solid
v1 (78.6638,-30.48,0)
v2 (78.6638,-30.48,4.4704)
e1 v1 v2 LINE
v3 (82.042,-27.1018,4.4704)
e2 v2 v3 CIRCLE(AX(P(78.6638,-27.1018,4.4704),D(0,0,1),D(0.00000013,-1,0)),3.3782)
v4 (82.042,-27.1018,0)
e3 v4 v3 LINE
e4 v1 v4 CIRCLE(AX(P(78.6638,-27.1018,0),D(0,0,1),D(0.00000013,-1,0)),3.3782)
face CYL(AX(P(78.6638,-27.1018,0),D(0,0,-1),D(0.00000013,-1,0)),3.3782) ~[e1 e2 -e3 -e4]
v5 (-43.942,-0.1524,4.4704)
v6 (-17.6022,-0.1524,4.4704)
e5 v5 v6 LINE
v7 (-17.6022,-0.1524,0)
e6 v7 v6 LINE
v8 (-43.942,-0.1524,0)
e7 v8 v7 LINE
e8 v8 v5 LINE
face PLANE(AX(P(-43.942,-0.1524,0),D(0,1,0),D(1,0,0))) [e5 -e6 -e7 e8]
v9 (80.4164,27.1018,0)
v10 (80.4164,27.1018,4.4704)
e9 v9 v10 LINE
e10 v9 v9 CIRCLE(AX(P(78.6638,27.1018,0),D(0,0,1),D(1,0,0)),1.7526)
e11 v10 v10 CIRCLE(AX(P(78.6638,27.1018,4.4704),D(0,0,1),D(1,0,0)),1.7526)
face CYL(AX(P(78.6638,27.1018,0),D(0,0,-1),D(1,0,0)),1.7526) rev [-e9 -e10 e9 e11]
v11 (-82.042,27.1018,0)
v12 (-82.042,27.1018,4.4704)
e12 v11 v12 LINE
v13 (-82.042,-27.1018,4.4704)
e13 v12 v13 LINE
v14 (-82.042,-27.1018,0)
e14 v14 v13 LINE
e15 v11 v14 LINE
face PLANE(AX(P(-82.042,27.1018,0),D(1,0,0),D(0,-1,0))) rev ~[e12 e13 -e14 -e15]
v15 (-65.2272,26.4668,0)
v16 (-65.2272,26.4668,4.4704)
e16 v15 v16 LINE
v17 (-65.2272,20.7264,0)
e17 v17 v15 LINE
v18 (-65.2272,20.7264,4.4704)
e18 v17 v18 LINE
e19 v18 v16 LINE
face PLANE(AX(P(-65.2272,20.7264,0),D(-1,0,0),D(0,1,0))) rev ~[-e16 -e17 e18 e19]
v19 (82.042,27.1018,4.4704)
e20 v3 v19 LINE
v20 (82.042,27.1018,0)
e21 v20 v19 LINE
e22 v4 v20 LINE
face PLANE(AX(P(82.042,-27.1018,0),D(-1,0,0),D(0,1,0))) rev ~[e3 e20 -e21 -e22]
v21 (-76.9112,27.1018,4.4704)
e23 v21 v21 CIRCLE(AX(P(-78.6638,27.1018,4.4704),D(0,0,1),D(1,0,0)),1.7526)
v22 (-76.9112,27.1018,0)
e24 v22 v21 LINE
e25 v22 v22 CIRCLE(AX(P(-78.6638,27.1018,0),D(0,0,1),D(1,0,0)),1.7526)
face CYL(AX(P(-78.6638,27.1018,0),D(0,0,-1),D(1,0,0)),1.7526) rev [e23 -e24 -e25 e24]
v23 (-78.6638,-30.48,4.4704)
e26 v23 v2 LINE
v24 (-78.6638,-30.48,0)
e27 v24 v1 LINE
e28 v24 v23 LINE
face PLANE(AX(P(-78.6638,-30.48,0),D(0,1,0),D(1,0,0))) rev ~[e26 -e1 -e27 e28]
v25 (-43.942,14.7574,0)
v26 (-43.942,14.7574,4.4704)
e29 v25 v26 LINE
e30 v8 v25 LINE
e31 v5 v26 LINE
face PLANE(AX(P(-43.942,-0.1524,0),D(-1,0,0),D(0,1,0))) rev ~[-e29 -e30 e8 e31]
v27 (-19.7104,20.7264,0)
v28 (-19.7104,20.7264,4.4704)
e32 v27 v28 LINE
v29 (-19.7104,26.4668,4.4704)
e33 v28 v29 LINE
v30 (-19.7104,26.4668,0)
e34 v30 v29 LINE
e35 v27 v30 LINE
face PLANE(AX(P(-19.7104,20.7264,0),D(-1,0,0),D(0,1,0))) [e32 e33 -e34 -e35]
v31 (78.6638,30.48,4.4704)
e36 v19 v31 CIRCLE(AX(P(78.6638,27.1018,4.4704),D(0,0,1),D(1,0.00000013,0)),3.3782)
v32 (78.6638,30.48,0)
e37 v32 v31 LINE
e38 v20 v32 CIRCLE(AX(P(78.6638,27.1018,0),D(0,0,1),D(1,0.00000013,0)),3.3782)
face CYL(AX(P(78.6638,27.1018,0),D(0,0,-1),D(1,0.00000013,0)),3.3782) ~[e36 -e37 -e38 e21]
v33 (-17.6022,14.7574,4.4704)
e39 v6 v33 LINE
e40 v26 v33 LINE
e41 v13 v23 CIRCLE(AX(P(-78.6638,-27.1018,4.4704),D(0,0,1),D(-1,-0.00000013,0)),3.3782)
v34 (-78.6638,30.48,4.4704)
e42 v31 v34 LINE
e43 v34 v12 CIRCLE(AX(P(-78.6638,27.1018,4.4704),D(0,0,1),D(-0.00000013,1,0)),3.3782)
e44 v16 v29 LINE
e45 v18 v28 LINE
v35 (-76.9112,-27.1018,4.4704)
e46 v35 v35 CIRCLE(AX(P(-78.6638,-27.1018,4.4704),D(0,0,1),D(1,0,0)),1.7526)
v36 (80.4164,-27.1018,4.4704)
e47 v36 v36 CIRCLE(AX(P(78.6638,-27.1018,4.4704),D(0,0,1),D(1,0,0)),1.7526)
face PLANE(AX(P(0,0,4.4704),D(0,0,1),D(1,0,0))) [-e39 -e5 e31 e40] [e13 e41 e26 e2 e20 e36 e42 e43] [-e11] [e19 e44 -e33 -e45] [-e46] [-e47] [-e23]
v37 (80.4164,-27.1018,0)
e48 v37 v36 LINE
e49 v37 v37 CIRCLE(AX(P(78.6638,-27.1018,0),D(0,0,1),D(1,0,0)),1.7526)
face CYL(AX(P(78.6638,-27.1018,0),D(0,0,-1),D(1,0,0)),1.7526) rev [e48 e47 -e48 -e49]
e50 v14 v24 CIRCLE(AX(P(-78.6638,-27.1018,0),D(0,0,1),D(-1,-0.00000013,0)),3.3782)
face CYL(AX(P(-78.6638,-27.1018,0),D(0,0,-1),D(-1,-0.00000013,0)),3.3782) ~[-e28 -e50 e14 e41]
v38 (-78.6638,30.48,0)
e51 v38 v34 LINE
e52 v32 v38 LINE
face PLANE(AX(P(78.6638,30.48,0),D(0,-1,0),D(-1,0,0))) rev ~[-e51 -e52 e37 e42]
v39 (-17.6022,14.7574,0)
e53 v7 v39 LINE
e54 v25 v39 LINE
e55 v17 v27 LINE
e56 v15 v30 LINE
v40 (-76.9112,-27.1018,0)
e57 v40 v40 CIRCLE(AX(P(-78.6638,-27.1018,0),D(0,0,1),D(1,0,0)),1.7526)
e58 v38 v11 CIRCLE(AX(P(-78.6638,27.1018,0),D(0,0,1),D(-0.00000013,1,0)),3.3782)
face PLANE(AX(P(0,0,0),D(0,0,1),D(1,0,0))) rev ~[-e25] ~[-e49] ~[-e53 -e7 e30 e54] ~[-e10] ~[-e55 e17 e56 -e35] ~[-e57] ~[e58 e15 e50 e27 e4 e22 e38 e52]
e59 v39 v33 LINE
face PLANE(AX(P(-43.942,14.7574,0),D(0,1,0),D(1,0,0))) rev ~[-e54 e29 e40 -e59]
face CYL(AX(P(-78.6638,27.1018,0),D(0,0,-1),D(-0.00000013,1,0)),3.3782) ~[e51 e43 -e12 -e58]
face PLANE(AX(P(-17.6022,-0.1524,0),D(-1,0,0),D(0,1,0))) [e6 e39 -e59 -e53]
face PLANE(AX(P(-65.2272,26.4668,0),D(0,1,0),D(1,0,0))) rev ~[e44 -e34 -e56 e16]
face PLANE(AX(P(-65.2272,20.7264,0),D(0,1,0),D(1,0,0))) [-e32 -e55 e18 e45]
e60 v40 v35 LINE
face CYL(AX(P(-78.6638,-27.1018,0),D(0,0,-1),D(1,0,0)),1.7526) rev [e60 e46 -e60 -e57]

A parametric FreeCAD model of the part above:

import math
import FreeCAD as App
import Part
import Sketcher

V = App.Vector
Q = App.Units.Quantity


def add_polygon(sketch, points):
    """Adds a closed chain of lines whose ends are joined by coincident constraints."""
    first, n = sketch.GeometryCount, len(points)
    for a, b in zip(points, points[1:] + points[:1]):
        sketch.addGeometry(Part.LineSegment(App.Vector(*a, 0), App.Vector(*b, 0)), False)
    for i in range(n):
        sketch.addConstraint(Sketcher.Constraint("Coincident", first + i, 2, first + (i + 1) % n, 1))

doc = App.newDocument("Part")
body = doc.addObject("PartDesign::Body", "Body")

# Sketch on XY plane
sketch1 = body.newObject("Sketcher::SketchObject", "Sketch")
sketch1.AttachmentSupport = (doc.getObject("XY_Plane"), [""])
sketch1.MapMode = "FlatFace"
sketch1.addGeometry(Part.LineSegment(V(-78.7, -30.5, 0), V(78.7, -30.5, 0)), False)  # 0
sketch1.addGeometry(Part.ArcOfCircle(Part.Circle(V(78.7, -27.1, 0), V(0, 0, 1), 3.4), math.radians(-90), math.radians(0)), False)  # 1
sketch1.addGeometry(Part.LineSegment(V(82, -27.1, 0), V(82, 27.1, 0)), False)  # 2
sketch1.addGeometry(Part.ArcOfCircle(Part.Circle(V(78.7, 27.1, 0), V(0, 0, 1), 3.4), math.radians(0), math.radians(90)), False)  # 3
sketch1.addGeometry(Part.LineSegment(V(78.7, 30.5, 0), V(-78.7, 30.5, 0)), False)  # 4
sketch1.addGeometry(Part.ArcOfCircle(Part.Circle(V(-78.7, 27.1, 0), V(0, 0, 1), 3.4), math.radians(90), math.radians(180)), False)  # 5
sketch1.addGeometry(Part.LineSegment(V(-82, 27.1, 0), V(-82, -27.1, 0)), False)  # 6
sketch1.addGeometry(Part.ArcOfCircle(Part.Circle(V(-78.7, -27.1, 0), V(0, 0, 1), 3.4), math.radians(-180), math.radians(-90)), False)  # 7
sketch1.addGeometry(Part.Circle(V(-78.7, -27.1, 0), V(0, 0, 1), 1.8), False)  # 8
sketch1.addGeometry(Part.Circle(V(78.7, -27.1, 0), V(0, 0, 1), 1.8), False)  # 9
add_polygon(sketch1, [(-17.6, -0.2), (-43.9, -0.2), (-43.9, 14.8), (-17.6, 14.8)])  # lines 10-13
sketch1.addGeometry(Part.Circle(V(-78.7, 27.1, 0), V(0, 0, 1), 1.8), False)  # 14
add_polygon(sketch1, [(-19.7, 20.7), (-65.2, 20.7), (-65.2, 26.5), (-19.7, 26.5)])  # lines 15-18
sketch1.addGeometry(Part.Circle(V(78.7, 27.1, 0), V(0, 0, 1), 1.8), False)  # 19
sketch1.addConstraint([
    Sketcher.Constraint("Tangent", 0, 2, 1, 1),
    Sketcher.Constraint("Tangent", 1, 2, 2, 1),
    Sketcher.Constraint("Tangent", 2, 2, 3, 1),
    Sketcher.Constraint("Tangent", 3, 2, 4, 1),
    Sketcher.Constraint("Tangent", 4, 2, 5, 1),
    Sketcher.Constraint("Tangent", 5, 2, 6, 1),
    Sketcher.Constraint("Tangent", 6, 2, 7, 1),
    Sketcher.Constraint("Tangent", 7, 2, 0, 1),
    Sketcher.Constraint("Horizontal", 0),
    Sketcher.Constraint("Vertical", 2),
    Sketcher.Constraint("Horizontal", 4),
    Sketcher.Constraint("Vertical", 6),
    Sketcher.Constraint("Horizontal", 10),
    Sketcher.Constraint("Vertical", 11),
    Sketcher.Constraint("Horizontal", 12),
    Sketcher.Constraint("Vertical", 13),
    Sketcher.Constraint("Horizontal", 15),
    Sketcher.Constraint("Vertical", 16),
    Sketcher.Constraint("Horizontal", 17),
    Sketcher.Constraint("Vertical", 18),
    Sketcher.Constraint("Coincident", 8, 3, 7, 3),
    Sketcher.Constraint("Coincident", 9, 3, 1, 3),
    Sketcher.Constraint("Coincident", 14, 3, 5, 3),
    Sketcher.Constraint("Coincident", 19, 3, 3, 3),
    Sketcher.Constraint("Equal", 1, 3),
    Sketcher.Constraint("Equal", 3, 5),
    Sketcher.Constraint("Equal", 5, 7),
    Sketcher.Constraint("Equal", 8, 9),
    Sketcher.Constraint("Equal", 9, 14),
    Sketcher.Constraint("Equal", 14, 19),
    Sketcher.Constraint("Symmetric", 1, 3, 5, 3, -1, 1),
    Sketcher.Constraint("Diameter", 8, Q("0.138 in")),
    Sketcher.Constraint("Radius", 1, Q("0.133 in")),
    Sketcher.Constraint("DistanceY", 0, 2, -1, 1, Q("1.2 in")),
    Sketcher.Constraint("DistanceX", 5, 2, 11, 2, Q("1.5 in")),
    Sketcher.Constraint("DistanceX", 0, 1, 0, 2, Q("6.194 in")),
    Sketcher.Constraint("DistanceX", 10, 2, 10, 1, Q("1.037 in")),
    Sketcher.Constraint("DistanceX", 15, 2, 15, 1, Q("1.792 in")),
    Sketcher.Constraint("DistanceY", 11, 1, 11, 2, Q("0.587 in")),
    Sketcher.Constraint("DistanceY", 16, 1, 16, 2, Q("0.226 in")),
    Sketcher.Constraint("DistanceY", 10, 2, -1, 1, Q("0.006 in")),
    Sketcher.Constraint("DistanceX", 15, 2, -1, 1, Q("2.568 in")),
    Sketcher.Constraint("DistanceY", -1, 1, 15, 2, Q("0.816 in")),
])
pad1 = body.newObject("PartDesign::Pad", "Pad")
pad1.Profile = sketch1
pad1.Length = Q("0.176 in")

doc.recompute()
